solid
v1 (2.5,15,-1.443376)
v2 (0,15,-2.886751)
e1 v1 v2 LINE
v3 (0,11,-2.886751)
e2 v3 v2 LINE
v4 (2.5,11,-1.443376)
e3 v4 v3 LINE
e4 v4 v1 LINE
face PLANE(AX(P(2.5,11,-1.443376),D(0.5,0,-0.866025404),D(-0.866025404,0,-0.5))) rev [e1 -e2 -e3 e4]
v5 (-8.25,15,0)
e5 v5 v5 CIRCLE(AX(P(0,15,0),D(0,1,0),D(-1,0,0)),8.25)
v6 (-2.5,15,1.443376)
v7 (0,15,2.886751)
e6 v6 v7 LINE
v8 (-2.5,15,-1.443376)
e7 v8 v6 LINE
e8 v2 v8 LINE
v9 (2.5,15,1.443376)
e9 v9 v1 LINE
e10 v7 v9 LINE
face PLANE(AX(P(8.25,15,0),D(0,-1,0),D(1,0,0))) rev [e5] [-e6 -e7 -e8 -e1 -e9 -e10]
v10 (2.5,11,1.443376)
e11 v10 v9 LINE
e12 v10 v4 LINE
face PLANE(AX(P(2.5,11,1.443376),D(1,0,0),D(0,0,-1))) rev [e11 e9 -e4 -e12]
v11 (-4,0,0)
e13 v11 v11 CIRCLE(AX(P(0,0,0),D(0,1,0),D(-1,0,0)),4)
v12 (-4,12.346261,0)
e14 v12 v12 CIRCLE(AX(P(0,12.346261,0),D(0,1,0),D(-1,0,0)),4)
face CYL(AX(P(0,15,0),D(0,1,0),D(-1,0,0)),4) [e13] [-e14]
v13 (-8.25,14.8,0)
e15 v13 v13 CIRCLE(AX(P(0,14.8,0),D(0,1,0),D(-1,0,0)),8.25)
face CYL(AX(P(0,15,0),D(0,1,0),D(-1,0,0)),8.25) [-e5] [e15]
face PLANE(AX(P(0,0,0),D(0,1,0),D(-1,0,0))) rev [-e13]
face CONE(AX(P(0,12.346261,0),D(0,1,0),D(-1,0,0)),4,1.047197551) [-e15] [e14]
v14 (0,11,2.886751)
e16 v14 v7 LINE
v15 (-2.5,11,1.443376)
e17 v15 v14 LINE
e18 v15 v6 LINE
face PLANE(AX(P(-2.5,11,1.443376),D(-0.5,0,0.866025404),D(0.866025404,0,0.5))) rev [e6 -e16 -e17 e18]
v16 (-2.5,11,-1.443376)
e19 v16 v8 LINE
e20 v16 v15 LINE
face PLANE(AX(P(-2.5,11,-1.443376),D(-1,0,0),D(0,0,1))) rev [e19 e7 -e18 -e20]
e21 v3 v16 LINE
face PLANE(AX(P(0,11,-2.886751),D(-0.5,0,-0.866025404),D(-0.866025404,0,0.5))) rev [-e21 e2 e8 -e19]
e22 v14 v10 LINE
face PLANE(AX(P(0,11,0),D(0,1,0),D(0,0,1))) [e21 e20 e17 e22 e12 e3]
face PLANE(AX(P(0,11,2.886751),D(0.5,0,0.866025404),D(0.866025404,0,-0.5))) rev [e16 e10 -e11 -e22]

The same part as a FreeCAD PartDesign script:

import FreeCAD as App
import Part
import Sketcher
Q = App.Units.Quantity

doc = App.newDocument("Part")
body = doc.addObject("PartDesign::Body", "Body")

sketch1 = doc.addObject("Sketcher::SketchObject", "Sketch")
body.addObject(sketch1)
sketch1.AttachmentSupport = (doc.XY_Plane, [""])
sketch1.MapMode = "FlatFace"
sketch1.addGeometry([
    Part.LineSegment(App.Vector(0, 0, 0), App.Vector(4, 0, 0)),
    Part.LineSegment(App.Vector(4, 0, 0), App.Vector(4, 12.346261, 0)),
    Part.LineSegment(App.Vector(4, 12.346261, 0), App.Vector(8.25, 14.8, 0)),
    Part.LineSegment(App.Vector(8.25, 14.8, 0), App.Vector(8.25, 15, 0)),
    Part.LineSegment(App.Vector(8.25, 15, 0), App.Vector(0, 15, 0)),
    Part.LineSegment(App.Vector(0, 15, 0), App.Vector(0, 0, 0)),
], False)
sketch1.addConstraint([
    Sketcher.Constraint("Coincident", 0, 2, 1, 1),
    Sketcher.Constraint("Coincident", 1, 2, 2, 1),
    Sketcher.Constraint("Coincident", 2, 2, 3, 1),
    Sketcher.Constraint("Coincident", 3, 2, 4, 1),
    Sketcher.Constraint("Coincident", 4, 2, 5, 1),
    Sketcher.Constraint("Coincident", 5, 2, 0, 1),
    Sketcher.Constraint("Horizontal", 0),
    Sketcher.Constraint("Vertical", 1),
    Sketcher.Constraint("Vertical", 3),
    Sketcher.Constraint("Horizontal", 4),
    Sketcher.Constraint("Vertical", 5),
    Sketcher.Constraint("Coincident", 5, 2, -1, 1),
    Sketcher.Constraint("DistanceX", 0, 1, 0, 2, 4.0),
    Sketcher.Constraint("DistanceY", 5, 2, 5, 1, 15.0),
    Sketcher.Constraint("Angle", 2, Q("30 deg")),
    Sketcher.Constraint("DistanceY", 3, 1, 3, 2, 0.2),
    Sketcher.Constraint("DistanceX", 4, 2, 4, 1, 8.25),
])
revolution = doc.addObject("PartDesign::Revolution", "Revolution")
body.addObject(revolution)
revolution.Profile = sketch1
revolution.ReferenceAxis = (sketch1, ["V_Axis"])
revolution.Angle = 360

sketch2 = doc.addObject("Sketcher::SketchObject", "Sketch001")
body.addObject(sketch2)
sketch2.AttachmentSupport = (doc.XZ_Plane, [""])
sketch2.MapMode = "FlatFace"
sketch2.AttachmentOffset = App.Placement(App.Vector(0, 0, -15), App.Rotation())
sketch2.addGeometry([
    Part.LineSegment(App.Vector(0, -2.886751, 0), App.Vector(-2.5, -1.443376, 0)),
    Part.LineSegment(App.Vector(-2.5, -1.443376, 0), App.Vector(-2.5, 1.443376, 0)),
    Part.LineSegment(App.Vector(-2.5, 1.443376, 0), App.Vector(0, 2.886751, 0)),
    Part.LineSegment(App.Vector(0, 2.886751, 0), App.Vector(2.5, 1.443376, 0)),
    Part.LineSegment(App.Vector(2.5, 1.443376, 0), App.Vector(2.5, -1.443376, 0)),
    Part.LineSegment(App.Vector(2.5, -1.443376, 0), App.Vector(0, -2.886751, 0)),
], False)
sketch2.addConstraint([
    Sketcher.Constraint("Coincident", 0, 2, 1, 1),
    Sketcher.Constraint("Coincident", 1, 2, 2, 1),
    Sketcher.Constraint("Coincident", 2, 2, 3, 1),
    Sketcher.Constraint("Coincident", 3, 2, 4, 1),
    Sketcher.Constraint("Coincident", 4, 2, 5, 1),
    Sketcher.Constraint("Coincident", 5, 2, 0, 1),
    Sketcher.Constraint("Vertical", 1),
    Sketcher.Constraint("Vertical", 4),
    Sketcher.Constraint("Symmetric", 0, 2, 3, 2, -1, 1),
    Sketcher.Constraint("Symmetric", 2, 2, 5, 2, -1, 1),
    Sketcher.Constraint("PointOnObject", 2, 2, -2),
    Sketcher.Constraint("Parallel", 2, 5),
    Sketcher.Constraint("Horizontal", 1, 2, 3, 2),
    Sketcher.Constraint("Angle", 0, Q("150 deg")),
    Sketcher.Constraint("DistanceX", 1, 2, 3, 2, 5.0),
    Sketcher.Constraint("DistanceY", 1, 1, 1, 2, 2.886751),
])
pocket1 = doc.addObject("PartDesign::Pocket", "Pocket")
body.addObject(pocket1)
pocket1.Profile = sketch2
pocket1.Length = 4
pocket1.Reversed = True

doc.recompute()
